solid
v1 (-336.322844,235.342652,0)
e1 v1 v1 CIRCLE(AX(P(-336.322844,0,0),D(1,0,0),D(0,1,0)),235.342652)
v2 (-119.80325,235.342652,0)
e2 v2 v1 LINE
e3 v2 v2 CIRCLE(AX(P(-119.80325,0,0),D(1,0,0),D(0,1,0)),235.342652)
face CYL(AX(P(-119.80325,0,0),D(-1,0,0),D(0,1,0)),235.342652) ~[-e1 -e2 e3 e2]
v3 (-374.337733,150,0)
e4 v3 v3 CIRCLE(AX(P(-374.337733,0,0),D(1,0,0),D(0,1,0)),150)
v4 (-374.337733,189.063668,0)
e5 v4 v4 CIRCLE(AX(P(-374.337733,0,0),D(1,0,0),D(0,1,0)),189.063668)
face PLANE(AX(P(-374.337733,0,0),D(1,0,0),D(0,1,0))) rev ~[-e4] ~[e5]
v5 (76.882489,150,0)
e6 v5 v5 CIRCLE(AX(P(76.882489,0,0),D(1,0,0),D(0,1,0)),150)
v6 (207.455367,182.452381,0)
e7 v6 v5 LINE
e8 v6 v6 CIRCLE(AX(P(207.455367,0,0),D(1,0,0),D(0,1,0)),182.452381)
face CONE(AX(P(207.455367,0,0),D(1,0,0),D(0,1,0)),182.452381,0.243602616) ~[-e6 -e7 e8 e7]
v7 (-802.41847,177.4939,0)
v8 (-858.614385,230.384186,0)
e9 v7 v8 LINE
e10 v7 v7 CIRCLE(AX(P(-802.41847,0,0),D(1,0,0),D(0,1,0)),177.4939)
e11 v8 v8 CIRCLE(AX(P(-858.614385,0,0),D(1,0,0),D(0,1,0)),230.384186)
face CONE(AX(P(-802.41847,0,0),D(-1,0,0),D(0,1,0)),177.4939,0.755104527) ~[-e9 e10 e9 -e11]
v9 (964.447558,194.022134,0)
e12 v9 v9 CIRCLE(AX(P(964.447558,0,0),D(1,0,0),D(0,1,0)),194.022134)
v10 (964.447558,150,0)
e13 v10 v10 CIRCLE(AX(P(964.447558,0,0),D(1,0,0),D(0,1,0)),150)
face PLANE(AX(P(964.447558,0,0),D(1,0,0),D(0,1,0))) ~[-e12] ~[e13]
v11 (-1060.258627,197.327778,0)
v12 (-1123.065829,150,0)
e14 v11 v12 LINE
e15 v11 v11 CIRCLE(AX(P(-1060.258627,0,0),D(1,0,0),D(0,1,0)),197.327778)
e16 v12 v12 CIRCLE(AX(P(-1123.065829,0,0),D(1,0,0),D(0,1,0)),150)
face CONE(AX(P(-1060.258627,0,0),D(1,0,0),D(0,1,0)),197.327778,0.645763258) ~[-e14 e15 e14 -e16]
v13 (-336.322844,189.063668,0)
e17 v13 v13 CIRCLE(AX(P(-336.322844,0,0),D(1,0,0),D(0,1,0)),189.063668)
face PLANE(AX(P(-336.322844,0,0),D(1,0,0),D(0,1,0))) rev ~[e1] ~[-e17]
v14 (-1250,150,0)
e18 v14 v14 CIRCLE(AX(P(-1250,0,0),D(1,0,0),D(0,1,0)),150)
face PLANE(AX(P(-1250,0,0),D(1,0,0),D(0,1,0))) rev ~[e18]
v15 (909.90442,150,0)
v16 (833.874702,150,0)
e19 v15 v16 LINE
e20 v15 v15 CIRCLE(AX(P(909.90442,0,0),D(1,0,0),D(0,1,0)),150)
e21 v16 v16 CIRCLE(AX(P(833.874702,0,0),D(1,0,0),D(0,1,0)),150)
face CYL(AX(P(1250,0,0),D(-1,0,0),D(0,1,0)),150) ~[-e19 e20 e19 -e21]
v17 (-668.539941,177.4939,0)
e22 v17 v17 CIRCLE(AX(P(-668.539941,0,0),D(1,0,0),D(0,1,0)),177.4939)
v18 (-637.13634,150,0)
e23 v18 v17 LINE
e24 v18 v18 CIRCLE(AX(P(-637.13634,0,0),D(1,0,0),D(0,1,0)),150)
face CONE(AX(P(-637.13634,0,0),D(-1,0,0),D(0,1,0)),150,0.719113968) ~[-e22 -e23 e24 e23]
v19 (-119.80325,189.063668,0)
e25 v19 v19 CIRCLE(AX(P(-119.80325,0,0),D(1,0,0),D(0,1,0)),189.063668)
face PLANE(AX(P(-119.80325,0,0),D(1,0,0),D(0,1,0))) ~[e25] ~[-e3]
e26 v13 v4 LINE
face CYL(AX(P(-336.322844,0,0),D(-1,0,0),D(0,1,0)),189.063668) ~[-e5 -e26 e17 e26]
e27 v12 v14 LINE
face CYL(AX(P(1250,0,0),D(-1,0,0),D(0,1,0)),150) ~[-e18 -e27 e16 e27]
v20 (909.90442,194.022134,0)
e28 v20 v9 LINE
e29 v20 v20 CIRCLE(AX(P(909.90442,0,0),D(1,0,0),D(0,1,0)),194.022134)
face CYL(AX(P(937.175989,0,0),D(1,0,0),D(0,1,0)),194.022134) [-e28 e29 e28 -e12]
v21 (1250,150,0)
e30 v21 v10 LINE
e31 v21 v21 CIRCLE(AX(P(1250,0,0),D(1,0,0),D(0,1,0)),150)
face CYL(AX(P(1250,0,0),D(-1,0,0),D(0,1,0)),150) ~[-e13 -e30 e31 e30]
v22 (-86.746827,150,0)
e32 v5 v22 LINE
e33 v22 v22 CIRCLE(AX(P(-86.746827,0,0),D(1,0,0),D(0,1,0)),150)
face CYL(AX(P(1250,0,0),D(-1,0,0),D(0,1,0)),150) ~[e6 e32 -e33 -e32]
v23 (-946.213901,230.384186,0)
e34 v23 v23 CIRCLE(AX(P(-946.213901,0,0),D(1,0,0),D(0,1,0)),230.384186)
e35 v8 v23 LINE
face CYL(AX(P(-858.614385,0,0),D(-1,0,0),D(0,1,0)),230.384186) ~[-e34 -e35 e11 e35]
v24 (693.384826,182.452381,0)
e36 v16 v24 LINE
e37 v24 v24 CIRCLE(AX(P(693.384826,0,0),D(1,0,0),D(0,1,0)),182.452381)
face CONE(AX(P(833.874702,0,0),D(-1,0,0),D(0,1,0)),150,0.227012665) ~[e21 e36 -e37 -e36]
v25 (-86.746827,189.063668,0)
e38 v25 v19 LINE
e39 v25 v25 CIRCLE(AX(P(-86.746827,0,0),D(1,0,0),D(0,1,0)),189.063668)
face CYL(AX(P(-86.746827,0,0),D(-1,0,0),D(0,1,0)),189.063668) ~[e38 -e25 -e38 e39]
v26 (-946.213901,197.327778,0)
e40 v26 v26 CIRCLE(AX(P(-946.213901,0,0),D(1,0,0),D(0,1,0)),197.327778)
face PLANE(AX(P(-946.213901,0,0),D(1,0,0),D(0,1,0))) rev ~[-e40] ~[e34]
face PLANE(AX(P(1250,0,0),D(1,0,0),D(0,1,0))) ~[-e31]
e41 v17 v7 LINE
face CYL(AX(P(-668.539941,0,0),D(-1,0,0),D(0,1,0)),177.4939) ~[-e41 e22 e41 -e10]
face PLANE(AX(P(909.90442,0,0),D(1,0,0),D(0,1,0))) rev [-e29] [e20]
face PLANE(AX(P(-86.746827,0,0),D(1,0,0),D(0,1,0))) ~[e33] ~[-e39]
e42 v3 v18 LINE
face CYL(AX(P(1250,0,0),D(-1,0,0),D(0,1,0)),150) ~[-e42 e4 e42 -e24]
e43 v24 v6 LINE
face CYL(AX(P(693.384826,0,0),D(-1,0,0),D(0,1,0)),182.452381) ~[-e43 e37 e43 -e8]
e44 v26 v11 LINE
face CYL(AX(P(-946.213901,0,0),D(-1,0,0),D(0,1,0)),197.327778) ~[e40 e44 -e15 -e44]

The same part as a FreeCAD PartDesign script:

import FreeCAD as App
import Part
import Sketcher

doc = App.newDocument("Part")
params = doc.addObject("Spreadsheet::Sheet", "Params")
for row, (alias, value) in enumerate([
    ("sketch1_width", "2500 mm"),
    ("sketch1_height", "150 mm"),
    ("revolution_angle", "360 deg"),
], start=1):
    params.set(f"A{row}", alias)
    params.set(f"B{row}", "=" + value)
    params.setAlias(f"B{row}", alias)

body = doc.addObject("PartDesign::Body", "Body")

# Sketch on XY plane
sketch1 = doc.addObject("Sketcher::SketchObject", "Sketch")
body.addObject(sketch1)
sketch1.AttachmentSupport = (doc.XY_Plane, [""])
sketch1.MapMode = "FlatFace"
sketch1.addGeometry([
    Part.LineSegment(App.Vector(-1250, 150, 0), App.Vector(-1250, 0, 0)),  # 0
    Part.LineSegment(App.Vector(-1250, 0, 0), App.Vector(1250, 0, 0)),  # 1
    Part.LineSegment(App.Vector(1250, 0, 0), App.Vector(1250, 150, 0)),  # 2
    Part.LineSegment(App.Vector(1250, 150, 0), App.Vector(964.447558, 150, 0)),  # 3
    Part.LineSegment(App.Vector(964.447558, 150, 0), App.Vector(964.447558, 194.022134, 0)),  # 4
    Part.LineSegment(App.Vector(964.447558, 194.022134, 0), App.Vector(909.90442, 194.022134, 0)),  # 5
    Part.LineSegment(App.Vector(909.90442, 194.022134, 0), App.Vector(909.90442, 150, 0)),  # 6
    Part.LineSegment(App.Vector(909.90442, 150, 0), App.Vector(833.874702, 150, 0)),  # 7
    Part.LineSegment(App.Vector(833.874702, 150, 0), App.Vector(693.384826, 182.452381, 0)),  # 8
    Part.LineSegment(App.Vector(693.384826, 182.452381, 0), App.Vector(207.455367, 182.452381, 0)),  # 9
    Part.LineSegment(App.Vector(207.455367, 182.452381, 0), App.Vector(76.882489, 150, 0)),  # 10
    Part.LineSegment(App.Vector(76.882489, 150, 0), App.Vector(-86.746827, 150, 0)),  # 11
    Part.LineSegment(App.Vector(-86.746827, 150, 0), App.Vector(-86.746827, 189.063668, 0)),  # 12
    Part.LineSegment(App.Vector(-86.746827, 189.063668, 0), App.Vector(-119.80325, 189.063668, 0)),  # 13
    Part.LineSegment(App.Vector(-119.80325, 189.063668, 0), App.Vector(-119.80325, 235.342652, 0)),  # 14
    Part.LineSegment(App.Vector(-119.80325, 235.342652, 0), App.Vector(-336.322844, 235.342652, 0)),  # 15
    Part.LineSegment(App.Vector(-336.322844, 235.342652, 0), App.Vector(-336.322844, 189.063668, 0)),  # 16
    Part.LineSegment(App.Vector(-336.322844, 189.063668, 0), App.Vector(-374.337733, 189.063668, 0)),  # 17
    Part.LineSegment(App.Vector(-374.337733, 189.063668, 0), App.Vector(-374.337733, 150, 0)),  # 18
    Part.LineSegment(App.Vector(-374.337733, 150, 0), App.Vector(-637.13634, 150, 0)),  # 19
    Part.LineSegment(App.Vector(-637.13634, 150, 0), App.Vector(-668.539941, 177.4939, 0)),  # 20
    Part.LineSegment(App.Vector(-668.539941, 177.4939, 0), App.Vector(-802.41847, 177.4939, 0)),  # 21
    Part.LineSegment(App.Vector(-802.41847, 177.4939, 0), App.Vector(-858.614385, 230.384186, 0)),  # 22
    Part.LineSegment(App.Vector(-858.614385, 230.384186, 0), App.Vector(-946.213901, 230.384186, 0)),  # 23
    Part.LineSegment(App.Vector(-946.213901, 230.384186, 0), App.Vector(-946.213901, 197.327778, 0)),  # 24
    Part.LineSegment(App.Vector(-946.213901, 197.327778, 0), App.Vector(-1060.258627, 197.327778, 0)),  # 25
    Part.LineSegment(App.Vector(-1060.258627, 197.327778, 0), App.Vector(-1123.065829, 150, 0)),  # 26
    Part.LineSegment(App.Vector(-1123.065829, 150, 0), App.Vector(-1250, 150, 0)),  # 27
], False)
sketch1.addConstraint([
    Sketcher.Constraint("Coincident", 0, 2, 1, 1),
    Sketcher.Constraint("Coincident", 1, 2, 2, 1),
    Sketcher.Constraint("Coincident", 2, 2, 3, 1),
    Sketcher.Constraint("Coincident", 3, 2, 4, 1),
    Sketcher.Constraint("Coincident", 4, 2, 5, 1),
    Sketcher.Constraint("Coincident", 5, 2, 6, 1),
    Sketcher.Constraint("Coincident", 6, 2, 7, 1),
    Sketcher.Constraint("Coincident", 7, 2, 8, 1),
    Sketcher.Constraint("Coincident", 8, 2, 9, 1),
    Sketcher.Constraint("Coincident", 9, 2, 10, 1),
    Sketcher.Constraint("Coincident", 10, 2, 11, 1),
    Sketcher.Constraint("Coincident", 11, 2, 12, 1),
    Sketcher.Constraint("Coincident", 12, 2, 13, 1),
    Sketcher.Constraint("Coincident", 13, 2, 14, 1),
    Sketcher.Constraint("Coincident", 14, 2, 15, 1),
    Sketcher.Constraint("Coincident", 15, 2, 16, 1),
    Sketcher.Constraint("Coincident", 16, 2, 17, 1),
    Sketcher.Constraint("Coincident", 17, 2, 18, 1),
    Sketcher.Constraint("Coincident", 18, 2, 19, 1),
    Sketcher.Constraint("Coincident", 19, 2, 20, 1),
    Sketcher.Constraint("Coincident", 20, 2, 21, 1),
    Sketcher.Constraint("Coincident", 21, 2, 22, 1),
    Sketcher.Constraint("Coincident", 22, 2, 23, 1),
    Sketcher.Constraint("Coincident", 23, 2, 24, 1),
    Sketcher.Constraint("Coincident", 24, 2, 25, 1),
    Sketcher.Constraint("Coincident", 25, 2, 26, 1),
    Sketcher.Constraint("Coincident", 26, 2, 27, 1),
    Sketcher.Constraint("Coincident", 27, 2, 0, 1),
    Sketcher.Constraint("Vertical", 0),
    Sketcher.Constraint("Horizontal", 1),
    Sketcher.Constraint("Vertical", 2),
    Sketcher.Constraint("Horizontal", 3),
    Sketcher.Constraint("Vertical", 4),
    Sketcher.Constraint("Horizontal", 5),
    Sketcher.Constraint("Vertical", 6),
    Sketcher.Constraint("Horizontal", 7),
    Sketcher.Constraint("Horizontal", 9),
    Sketcher.Constraint("Horizontal", 11),
    Sketcher.Constraint("Vertical", 12),
    Sketcher.Constraint("Horizontal", 13),
    Sketcher.Constraint("Vertical", 14),
    Sketcher.Constraint("Horizontal", 15),
    Sketcher.Constraint("Vertical", 16),
    Sketcher.Constraint("Horizontal", 17),
    Sketcher.Constraint("Vertical", 18),
    Sketcher.Constraint("Horizontal", 19),
    Sketcher.Constraint("Horizontal", 21),
    Sketcher.Constraint("Horizontal", 23),
    Sketcher.Constraint("Vertical", 24),
    Sketcher.Constraint("Horizontal", 25),
    Sketcher.Constraint("Horizontal", 27),
    Sketcher.Constraint("Symmetric", 0, 2, 1, 2, -1, 1),
    Sketcher.Constraint("Horizontal", 3, 2, 6, 2),
    Sketcher.Constraint("Horizontal", 7, 2, 10, 2),
    Sketcher.Constraint("Horizontal", 13, 2, 16, 2),
    Sketcher.Constraint("Horizontal", 11, 2, 18, 2),
    Sketcher.Constraint("Horizontal", 19, 2, 26, 2),
    Sketcher.Constraint("DistanceX", 1, 1, 1, 2, 2500.0),
    Sketcher.Constraint("DistanceY", 0, 2, 0, 1, 150.0),
    Sketcher.Constraint("Distance", 22, 77.171),
    Sketcher.Constraint("DistanceX", 7, 2, 7, 1, 76.029718),
    Sketcher.Constraint("DistanceX", 9, 2, 9, 1, 485.929459),
    Sketcher.Constraint("DistanceX", 17, 2, 17, 1, 38.014889),
    Sketcher.Constraint("DistanceX", 21, 2, 21, 1, 133.878529),
    Sketcher.Constraint("DistanceX", 27, 2, 27, 1, 126.934171),
    Sketcher.Constraint("DistanceY", 12, 1, 12, 2, 39.063668),
    Sketcher.Constraint("DistanceY", 24, 2, 24, 1, 33.056408),
    Sketcher.Constraint("DistanceX", -1, 1, 7, 2, 833.874702),
    Sketcher.Constraint("DistanceY", -1, 1, 20, 2, 177.4939),
    Sketcher.Constraint("DistanceX", 23, 2, -1, 1, 946.213901),
    Sketcher.Constraint("DistanceX", 20, 2, 19, 2, 31.403601),
    Sketcher.Constraint("DistanceX", 26, 2, 25, 2, 62.807202),
    Sketcher.Constraint("Distance", 26, 78.64263),
    Sketcher.Constraint("DistanceX", 3, 2, 3, 1, 285.552442),
    Sketcher.Constraint("DistanceX", 11, 2, 11, 1, 163.629316),
    Sketcher.Constraint("DistanceX", 13, 2, 13, 1, 33.056423),
    Sketcher.Constraint("DistanceX", 15, 2, 15, 1, 216.519594),
    Sketcher.Constraint("DistanceX", 19, 2, 19, 1, 262.798607),
    Sketcher.Constraint("DistanceX", 23, 2, 23, 1, 87.599516),
    Sketcher.Constraint("DistanceY", 4, 1, 4, 2, 44.022134),
    Sketcher.Constraint("DistanceY", 14, 1, 14, 2, 46.278984),
    Sketcher.Constraint("DistanceY", -1, 1, 8, 2, 182.452381),
    Sketcher.Constraint("DistanceX", 8, 2, 4, 2, 271.062732),
])
sketch1.setExpression("Constraints[57]", "Params.sketch1_width")
sketch1.setExpression("Constraints[58]", "Params.sketch1_height")
revolution = doc.addObject("PartDesign::Revolution", "Revolution")
body.addObject(revolution)
revolution.Profile = sketch1
revolution.ReferenceAxis = (sketch1, ["H_Axis"])
revolution.setExpression("Angle", "Params.revolution_angle")

doc.recompute()
